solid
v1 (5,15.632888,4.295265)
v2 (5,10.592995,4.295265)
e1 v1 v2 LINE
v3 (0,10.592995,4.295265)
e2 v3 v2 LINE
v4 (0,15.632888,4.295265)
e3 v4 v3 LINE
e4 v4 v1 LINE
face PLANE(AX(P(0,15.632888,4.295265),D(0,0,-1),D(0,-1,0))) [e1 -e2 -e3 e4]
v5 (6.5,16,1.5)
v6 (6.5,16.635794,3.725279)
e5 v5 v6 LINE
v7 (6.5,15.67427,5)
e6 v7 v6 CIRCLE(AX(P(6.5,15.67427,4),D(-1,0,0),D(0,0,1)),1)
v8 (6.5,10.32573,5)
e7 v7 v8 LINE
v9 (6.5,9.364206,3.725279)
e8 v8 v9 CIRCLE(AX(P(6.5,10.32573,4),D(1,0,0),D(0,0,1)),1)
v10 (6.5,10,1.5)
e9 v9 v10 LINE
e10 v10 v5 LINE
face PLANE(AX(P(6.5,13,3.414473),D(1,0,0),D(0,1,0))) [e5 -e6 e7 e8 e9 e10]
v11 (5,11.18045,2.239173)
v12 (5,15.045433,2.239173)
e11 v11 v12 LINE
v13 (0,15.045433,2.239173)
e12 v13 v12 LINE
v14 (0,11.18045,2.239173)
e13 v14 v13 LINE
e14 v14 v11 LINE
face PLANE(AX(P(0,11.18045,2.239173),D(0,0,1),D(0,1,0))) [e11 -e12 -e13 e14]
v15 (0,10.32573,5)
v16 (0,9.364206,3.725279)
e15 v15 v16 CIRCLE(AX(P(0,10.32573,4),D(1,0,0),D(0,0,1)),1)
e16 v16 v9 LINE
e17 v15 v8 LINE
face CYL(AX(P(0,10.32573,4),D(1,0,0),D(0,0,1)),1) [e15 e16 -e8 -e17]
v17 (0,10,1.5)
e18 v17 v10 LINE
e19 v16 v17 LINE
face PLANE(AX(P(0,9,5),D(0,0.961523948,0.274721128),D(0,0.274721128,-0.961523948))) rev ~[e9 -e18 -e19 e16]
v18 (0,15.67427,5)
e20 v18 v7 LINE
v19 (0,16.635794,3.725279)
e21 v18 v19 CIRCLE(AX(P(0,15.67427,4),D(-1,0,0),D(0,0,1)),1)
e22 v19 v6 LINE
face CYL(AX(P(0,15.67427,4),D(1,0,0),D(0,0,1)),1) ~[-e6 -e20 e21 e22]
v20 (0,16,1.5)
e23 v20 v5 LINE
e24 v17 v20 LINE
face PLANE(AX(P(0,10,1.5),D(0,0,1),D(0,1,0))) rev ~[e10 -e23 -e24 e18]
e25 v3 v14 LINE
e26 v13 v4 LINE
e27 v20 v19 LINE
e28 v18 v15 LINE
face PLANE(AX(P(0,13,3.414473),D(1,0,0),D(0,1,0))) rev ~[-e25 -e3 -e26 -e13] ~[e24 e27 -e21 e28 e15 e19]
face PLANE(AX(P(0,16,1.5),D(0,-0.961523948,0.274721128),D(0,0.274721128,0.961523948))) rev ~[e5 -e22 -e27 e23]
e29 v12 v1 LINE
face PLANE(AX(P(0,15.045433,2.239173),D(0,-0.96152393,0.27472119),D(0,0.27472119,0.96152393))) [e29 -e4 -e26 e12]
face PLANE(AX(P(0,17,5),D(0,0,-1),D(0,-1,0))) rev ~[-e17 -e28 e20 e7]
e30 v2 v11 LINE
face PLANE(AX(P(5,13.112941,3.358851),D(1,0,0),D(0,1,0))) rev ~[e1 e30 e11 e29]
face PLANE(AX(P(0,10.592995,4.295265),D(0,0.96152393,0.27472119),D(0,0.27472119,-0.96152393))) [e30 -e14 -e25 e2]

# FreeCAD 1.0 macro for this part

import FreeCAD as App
import Part
import Sketcher
from FreeCAD import Vector


def edges_at(feature, points):
    """Names of the edges that pass closest to the given points."""
    edges = feature.Shape.Edges
    near = lambda p: min(range(len(edges)), key=lambda i: edges[i].distToShape(Part.Vertex(*p))[0])
    return sorted({f"Edge{near(p) + 1}" for p in points})


def add_polygon(sketch, points):
    """Adds a closed chain of lines whose ends are joined by coincident constraints."""
    first, n = sketch.GeometryCount, len(points)
    for a, b in zip(points, points[1:] + points[:1]):
        sketch.addGeometry(Part.LineSegment(App.Vector(*a, 0), App.Vector(*b, 0)), False)
    for i in range(n):
        sketch.addConstraint(Sketcher.Constraint("Coincident", first + i, 2, first + (i + 1) % n, 1))

doc = App.newDocument("Part")
body = doc.addObject("PartDesign::Body", "Body")

sketch1 = body.newObject("Sketcher::SketchObject", "Sketch")
sketch1.AttachmentSupport = (doc.getObject("YZ_Plane"), [""])
sketch1.MapMode = "FlatFace"
add_polygon(sketch1, [(9, 5), (17, 5), (16, 1.5), (10, 1.5)])
sketch1.addConstraint([
    Sketcher.Constraint("Horizontal", 0),
    Sketcher.Constraint("Horizontal", 2),
    Sketcher.Constraint("Equal", 1, 3),
    Sketcher.Constraint("DistanceX", 0, 1, 0, 2, 8.0),
    Sketcher.Constraint("DistanceX", 2, 2, 2, 1, 6.0),
    Sketcher.Constraint("DistanceX", -1, 1, 0, 2, 17.0),
    Sketcher.Constraint("DistanceY", -1, 1, 0, 2, 5.0),
    Sketcher.Constraint("DistanceY", -1, 1, 1, 2, 1.5),
])
pad1 = body.newObject("PartDesign::Pad", "Pad")
pad1.Profile = sketch1
pad1.Length = 6.5

sketch2 = body.newObject("Sketcher::SketchObject", "Sketch001")
sketch2.AttachmentSupport = (doc.getObject("YZ_Plane"), [""])
sketch2.MapMode = "FlatFace"
add_polygon(sketch2, [(10.6, 4.3), (15.6, 4.3), (15, 2.2), (11.2, 2.2)])
sketch2.addConstraint([
    Sketcher.Constraint("Horizontal", 0),
    Sketcher.Constraint("Horizontal", 2),
    Sketcher.Constraint("Equal", 1, 3),
    Sketcher.Constraint("DistanceX", 0, 1, 0, 2, 5.039893),
    Sketcher.Constraint("DistanceX", 2, 2, 2, 1, 3.864983),
    Sketcher.Constraint("DistanceX", -1, 1, 2, 2, 11.18045),
    Sketcher.Constraint("DistanceY", 1, 2, 0, 2, 2.056092),
    Sketcher.Constraint("DistanceY", -1, 1, 0, 2, 4.295265),
])
pocket1 = body.newObject("PartDesign::Pocket", "Pocket")
pocket1.Profile = sketch2
pocket1.Length = 5
pocket1.Reversed = True
doc.recompute()

fillet = body.newObject("PartDesign::Fillet", "Fillet")
fillet.Base = (pocket1, edges_at(pocket1, [(3.25, 17, 5), (3.25, 9, 5)]))
fillet.Radius = 1

doc.recompute()
